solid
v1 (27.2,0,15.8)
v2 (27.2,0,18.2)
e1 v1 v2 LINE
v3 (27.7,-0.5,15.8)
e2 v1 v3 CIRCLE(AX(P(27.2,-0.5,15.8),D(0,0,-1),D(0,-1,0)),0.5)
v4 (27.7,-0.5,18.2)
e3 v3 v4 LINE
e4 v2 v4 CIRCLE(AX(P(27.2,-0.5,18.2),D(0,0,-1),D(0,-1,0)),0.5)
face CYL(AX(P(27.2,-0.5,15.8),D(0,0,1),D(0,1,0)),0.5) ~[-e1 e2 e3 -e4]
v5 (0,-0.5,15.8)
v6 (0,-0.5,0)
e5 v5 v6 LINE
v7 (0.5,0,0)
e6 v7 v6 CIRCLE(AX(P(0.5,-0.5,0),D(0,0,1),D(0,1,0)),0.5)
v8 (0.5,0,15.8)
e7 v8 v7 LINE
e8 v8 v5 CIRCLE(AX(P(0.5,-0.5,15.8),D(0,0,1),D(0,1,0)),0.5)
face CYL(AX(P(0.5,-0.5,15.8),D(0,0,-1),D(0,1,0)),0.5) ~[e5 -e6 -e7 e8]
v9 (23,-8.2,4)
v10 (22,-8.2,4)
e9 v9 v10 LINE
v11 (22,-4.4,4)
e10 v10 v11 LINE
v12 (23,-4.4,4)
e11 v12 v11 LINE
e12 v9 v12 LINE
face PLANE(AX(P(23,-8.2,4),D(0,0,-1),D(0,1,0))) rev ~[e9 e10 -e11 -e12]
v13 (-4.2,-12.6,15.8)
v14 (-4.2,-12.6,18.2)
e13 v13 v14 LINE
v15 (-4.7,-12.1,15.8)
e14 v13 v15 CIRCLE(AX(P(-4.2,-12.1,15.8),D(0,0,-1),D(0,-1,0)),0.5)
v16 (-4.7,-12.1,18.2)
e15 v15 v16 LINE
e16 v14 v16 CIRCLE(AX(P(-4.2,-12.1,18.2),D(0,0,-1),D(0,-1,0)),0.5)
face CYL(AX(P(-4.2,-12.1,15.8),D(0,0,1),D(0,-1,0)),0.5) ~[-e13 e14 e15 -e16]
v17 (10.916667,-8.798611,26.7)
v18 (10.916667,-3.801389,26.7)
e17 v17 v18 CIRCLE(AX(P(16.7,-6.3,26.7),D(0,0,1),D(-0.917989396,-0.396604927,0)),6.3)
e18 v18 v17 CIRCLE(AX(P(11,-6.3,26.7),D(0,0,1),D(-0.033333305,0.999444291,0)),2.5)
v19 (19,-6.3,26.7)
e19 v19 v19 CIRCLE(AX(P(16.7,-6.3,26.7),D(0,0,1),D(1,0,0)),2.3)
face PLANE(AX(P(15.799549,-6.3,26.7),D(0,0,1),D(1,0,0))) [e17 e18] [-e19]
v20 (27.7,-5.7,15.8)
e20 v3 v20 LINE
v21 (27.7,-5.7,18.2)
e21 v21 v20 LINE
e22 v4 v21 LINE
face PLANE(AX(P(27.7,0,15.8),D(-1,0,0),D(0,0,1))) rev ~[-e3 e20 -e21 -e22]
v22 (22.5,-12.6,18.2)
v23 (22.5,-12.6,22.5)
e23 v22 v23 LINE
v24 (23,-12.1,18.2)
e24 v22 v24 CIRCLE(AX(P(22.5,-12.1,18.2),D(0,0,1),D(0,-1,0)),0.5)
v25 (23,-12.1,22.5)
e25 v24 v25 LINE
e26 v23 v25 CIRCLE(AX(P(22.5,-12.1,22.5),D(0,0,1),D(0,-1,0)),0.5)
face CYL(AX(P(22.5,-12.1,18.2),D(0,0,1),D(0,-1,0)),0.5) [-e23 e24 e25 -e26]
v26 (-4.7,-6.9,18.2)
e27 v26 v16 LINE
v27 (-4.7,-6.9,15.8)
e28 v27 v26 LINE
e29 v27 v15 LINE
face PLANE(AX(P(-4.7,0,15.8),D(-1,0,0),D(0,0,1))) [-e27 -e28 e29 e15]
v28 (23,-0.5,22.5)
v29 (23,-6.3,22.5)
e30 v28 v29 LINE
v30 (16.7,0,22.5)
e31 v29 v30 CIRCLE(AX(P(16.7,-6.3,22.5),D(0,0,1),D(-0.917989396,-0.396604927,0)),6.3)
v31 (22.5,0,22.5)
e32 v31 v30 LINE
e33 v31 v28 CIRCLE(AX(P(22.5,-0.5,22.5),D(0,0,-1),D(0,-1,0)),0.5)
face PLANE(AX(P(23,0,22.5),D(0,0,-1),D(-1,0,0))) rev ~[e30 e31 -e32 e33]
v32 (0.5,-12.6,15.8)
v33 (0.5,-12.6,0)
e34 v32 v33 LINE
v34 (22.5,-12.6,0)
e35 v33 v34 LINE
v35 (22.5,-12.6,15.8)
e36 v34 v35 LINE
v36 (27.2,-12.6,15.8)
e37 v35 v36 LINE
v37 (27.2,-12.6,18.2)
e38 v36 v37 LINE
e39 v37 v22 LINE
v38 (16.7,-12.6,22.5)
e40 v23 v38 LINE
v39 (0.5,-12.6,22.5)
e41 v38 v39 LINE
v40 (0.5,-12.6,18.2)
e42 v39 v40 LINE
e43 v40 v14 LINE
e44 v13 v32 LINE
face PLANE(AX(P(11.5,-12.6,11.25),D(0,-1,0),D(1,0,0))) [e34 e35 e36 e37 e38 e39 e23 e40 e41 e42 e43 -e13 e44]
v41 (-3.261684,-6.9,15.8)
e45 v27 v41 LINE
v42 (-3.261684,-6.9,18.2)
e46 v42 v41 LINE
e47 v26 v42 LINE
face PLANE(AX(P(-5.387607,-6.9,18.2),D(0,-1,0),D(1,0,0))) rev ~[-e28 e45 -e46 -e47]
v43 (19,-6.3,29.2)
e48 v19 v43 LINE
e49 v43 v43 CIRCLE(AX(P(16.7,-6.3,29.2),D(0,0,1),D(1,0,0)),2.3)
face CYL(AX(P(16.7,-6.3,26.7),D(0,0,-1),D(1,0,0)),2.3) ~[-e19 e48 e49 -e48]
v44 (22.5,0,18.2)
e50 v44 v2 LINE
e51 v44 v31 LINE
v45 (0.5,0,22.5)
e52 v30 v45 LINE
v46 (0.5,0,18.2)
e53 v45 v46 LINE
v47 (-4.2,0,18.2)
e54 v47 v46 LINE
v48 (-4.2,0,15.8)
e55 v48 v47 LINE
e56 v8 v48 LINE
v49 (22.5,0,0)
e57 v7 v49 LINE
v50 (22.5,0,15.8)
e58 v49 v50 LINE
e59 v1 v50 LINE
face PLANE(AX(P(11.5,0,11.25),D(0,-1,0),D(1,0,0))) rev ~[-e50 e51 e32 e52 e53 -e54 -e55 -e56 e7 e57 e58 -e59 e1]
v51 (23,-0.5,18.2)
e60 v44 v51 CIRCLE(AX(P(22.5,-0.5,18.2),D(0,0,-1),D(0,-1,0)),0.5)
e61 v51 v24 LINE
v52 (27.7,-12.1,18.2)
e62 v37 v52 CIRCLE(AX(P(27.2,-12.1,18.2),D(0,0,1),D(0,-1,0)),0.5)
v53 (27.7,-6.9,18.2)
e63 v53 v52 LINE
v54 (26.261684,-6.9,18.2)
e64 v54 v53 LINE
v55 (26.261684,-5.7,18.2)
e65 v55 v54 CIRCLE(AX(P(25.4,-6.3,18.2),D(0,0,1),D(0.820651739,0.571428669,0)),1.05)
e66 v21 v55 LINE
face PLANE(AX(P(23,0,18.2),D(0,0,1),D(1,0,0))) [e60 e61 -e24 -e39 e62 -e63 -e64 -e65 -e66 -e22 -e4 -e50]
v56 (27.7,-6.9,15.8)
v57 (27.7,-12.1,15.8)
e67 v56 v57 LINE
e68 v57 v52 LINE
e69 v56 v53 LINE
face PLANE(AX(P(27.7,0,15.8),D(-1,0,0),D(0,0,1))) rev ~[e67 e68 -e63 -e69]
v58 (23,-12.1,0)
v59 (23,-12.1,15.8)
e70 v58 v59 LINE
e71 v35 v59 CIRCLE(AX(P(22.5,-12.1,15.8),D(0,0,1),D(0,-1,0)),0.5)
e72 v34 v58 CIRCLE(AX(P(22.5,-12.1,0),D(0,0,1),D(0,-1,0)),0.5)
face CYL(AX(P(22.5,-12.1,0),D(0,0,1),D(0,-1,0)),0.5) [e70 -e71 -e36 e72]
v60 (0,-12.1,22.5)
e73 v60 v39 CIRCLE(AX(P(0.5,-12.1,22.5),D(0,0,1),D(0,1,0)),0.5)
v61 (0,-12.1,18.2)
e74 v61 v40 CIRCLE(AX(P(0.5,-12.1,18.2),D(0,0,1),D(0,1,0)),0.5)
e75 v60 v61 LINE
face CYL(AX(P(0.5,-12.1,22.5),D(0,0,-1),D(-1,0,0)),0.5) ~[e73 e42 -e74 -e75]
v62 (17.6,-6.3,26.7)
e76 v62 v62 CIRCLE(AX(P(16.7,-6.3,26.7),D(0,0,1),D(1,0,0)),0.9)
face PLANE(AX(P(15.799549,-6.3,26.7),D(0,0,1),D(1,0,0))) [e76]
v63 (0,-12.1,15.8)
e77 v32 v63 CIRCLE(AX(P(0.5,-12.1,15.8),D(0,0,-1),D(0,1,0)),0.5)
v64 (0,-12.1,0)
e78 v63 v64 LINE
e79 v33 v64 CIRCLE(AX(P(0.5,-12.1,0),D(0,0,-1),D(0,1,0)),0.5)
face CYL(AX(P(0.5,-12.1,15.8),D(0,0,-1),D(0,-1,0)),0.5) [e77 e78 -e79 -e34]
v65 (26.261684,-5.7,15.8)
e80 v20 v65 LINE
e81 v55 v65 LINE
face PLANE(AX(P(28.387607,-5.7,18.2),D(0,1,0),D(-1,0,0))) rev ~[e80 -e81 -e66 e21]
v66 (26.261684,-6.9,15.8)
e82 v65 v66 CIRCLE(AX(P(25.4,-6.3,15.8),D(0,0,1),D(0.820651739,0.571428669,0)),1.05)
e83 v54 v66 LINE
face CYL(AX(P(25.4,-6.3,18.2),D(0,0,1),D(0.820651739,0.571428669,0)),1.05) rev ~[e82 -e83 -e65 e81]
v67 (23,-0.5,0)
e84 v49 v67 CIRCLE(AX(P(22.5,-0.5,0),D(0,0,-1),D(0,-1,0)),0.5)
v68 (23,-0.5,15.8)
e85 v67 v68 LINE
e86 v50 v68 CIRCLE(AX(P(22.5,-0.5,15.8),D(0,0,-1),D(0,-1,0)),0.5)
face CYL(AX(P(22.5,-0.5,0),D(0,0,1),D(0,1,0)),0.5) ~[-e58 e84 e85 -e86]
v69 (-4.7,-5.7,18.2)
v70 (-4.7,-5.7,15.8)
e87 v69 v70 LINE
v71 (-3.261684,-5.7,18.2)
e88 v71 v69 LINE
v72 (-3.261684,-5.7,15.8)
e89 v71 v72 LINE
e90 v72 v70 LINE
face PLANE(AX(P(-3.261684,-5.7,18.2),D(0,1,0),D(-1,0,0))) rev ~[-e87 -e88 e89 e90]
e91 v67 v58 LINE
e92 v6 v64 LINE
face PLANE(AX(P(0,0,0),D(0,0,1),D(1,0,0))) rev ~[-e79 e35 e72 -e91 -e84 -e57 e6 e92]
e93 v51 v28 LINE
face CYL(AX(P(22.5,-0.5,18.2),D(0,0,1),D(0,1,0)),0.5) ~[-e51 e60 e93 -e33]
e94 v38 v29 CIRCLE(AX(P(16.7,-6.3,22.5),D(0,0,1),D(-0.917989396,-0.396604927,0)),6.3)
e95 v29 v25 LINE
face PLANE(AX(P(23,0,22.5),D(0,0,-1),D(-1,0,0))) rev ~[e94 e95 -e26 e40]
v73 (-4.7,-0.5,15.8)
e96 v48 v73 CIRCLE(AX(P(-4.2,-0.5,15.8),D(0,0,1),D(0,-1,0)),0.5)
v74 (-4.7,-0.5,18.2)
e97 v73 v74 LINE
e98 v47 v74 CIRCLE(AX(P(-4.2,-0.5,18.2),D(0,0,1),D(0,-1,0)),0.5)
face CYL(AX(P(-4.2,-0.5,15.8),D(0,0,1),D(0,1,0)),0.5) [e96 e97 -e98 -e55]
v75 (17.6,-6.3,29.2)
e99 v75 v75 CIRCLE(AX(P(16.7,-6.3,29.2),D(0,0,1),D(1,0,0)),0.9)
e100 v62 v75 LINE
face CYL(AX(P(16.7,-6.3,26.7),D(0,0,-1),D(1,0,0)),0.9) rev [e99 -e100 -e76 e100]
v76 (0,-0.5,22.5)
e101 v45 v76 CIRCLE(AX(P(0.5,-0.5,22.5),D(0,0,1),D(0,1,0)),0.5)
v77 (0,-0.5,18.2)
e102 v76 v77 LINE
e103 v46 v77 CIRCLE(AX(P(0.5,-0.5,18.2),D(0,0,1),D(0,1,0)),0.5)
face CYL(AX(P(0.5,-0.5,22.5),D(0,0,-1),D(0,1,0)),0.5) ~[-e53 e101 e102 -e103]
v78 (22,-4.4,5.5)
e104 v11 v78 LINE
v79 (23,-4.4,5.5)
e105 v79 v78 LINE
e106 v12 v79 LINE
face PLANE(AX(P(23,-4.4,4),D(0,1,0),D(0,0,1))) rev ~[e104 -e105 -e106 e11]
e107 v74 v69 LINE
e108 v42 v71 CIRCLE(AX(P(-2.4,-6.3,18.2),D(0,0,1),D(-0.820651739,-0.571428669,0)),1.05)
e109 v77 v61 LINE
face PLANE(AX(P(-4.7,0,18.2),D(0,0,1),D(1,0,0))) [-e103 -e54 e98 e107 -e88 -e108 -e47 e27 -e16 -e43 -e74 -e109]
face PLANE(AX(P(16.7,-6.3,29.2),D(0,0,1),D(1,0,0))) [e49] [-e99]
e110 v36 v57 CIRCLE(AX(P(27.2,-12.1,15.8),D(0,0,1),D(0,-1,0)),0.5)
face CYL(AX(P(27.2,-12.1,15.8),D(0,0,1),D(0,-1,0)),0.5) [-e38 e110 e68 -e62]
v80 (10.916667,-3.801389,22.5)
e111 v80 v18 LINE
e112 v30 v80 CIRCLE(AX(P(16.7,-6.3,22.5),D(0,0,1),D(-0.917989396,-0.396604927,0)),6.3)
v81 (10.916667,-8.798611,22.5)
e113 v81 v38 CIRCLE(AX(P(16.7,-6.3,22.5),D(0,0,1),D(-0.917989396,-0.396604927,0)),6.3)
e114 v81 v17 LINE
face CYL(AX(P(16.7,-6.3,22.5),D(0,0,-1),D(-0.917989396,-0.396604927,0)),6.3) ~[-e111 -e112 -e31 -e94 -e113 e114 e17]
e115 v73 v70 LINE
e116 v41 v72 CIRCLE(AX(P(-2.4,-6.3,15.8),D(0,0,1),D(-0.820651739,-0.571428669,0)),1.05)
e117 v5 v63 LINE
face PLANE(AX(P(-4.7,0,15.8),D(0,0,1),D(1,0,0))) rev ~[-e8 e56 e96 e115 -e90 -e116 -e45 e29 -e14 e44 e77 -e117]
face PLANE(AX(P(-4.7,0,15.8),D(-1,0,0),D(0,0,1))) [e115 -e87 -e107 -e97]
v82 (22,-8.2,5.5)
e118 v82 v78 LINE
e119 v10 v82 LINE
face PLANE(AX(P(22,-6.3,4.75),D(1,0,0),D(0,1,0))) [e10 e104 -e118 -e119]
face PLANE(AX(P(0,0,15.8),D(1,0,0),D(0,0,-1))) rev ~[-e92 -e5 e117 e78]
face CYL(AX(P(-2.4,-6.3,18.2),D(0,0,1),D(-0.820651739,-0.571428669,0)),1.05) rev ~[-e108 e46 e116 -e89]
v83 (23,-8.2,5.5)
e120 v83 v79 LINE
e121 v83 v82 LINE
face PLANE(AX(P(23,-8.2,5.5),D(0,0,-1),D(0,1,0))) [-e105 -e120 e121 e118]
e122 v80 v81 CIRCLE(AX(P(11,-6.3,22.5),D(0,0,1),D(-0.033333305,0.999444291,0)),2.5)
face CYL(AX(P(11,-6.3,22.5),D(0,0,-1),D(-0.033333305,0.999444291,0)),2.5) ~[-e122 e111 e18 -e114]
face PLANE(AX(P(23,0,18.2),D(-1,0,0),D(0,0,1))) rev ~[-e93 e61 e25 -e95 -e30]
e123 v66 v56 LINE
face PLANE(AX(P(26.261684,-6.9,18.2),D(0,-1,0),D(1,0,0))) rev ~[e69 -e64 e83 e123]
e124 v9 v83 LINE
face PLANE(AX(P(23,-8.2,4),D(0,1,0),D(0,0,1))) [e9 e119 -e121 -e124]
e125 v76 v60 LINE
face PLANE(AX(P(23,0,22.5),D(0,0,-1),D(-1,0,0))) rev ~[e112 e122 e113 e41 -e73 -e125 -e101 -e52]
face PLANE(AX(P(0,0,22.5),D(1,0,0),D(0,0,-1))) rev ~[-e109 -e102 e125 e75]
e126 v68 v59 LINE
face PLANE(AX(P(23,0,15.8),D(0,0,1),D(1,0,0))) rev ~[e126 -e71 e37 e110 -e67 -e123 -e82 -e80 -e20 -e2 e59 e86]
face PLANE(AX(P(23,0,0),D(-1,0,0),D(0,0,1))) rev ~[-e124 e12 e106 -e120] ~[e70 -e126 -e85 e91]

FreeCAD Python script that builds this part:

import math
import FreeCAD as App
import Part
import Sketcher
Q = App.Units.Quantity


def edges_at(feature, points):
    """Names of the edges that pass closest to the given points."""
    edges = feature.Shape.Edges
    near = lambda p: min(range(len(edges)), key=lambda i: edges[i].distToShape(Part.Vertex(*p))[0])
    return sorted({f"Edge{near(p) + 1}" for p in points})


def add_polygon(sketch, points):
    """Adds a closed chain of lines whose ends are joined by coincident constraints."""
    first, n = sketch.GeometryCount, len(points)
    for a, b in zip(points, points[1:] + points[:1]):
        sketch.addGeometry(Part.LineSegment(App.Vector(*a, 0), App.Vector(*b, 0)), False)
    for i in range(n):
        sketch.addConstraint(Sketcher.Constraint("Coincident", first + i, 2, first + (i + 1) % n, 1))

doc = App.newDocument("Part")
body = doc.addObject("PartDesign::Body", "Body")

# Sketch on XZ plane
sketch1 = body.newObject("Sketcher::SketchObject", "Sketch")
sketch1.AttachmentSupport = (doc.getObject("XZ_Plane"), [""])
sketch1.MapMode = "FlatFace"
add_polygon(sketch1, [(0, 0), (23, 0), (23, 15.8), (27.7, 15.8), (27.7, 18.2), (23, 18.2), (23, 22.5), (0, 22.5), (0, 18.2), (-4.7, 18.2), (-4.7, 15.8), (0, 15.8)])  # lines 0-11
sketch1.addConstraint(Sketcher.Constraint("Horizontal", 0))
sketch1.addConstraint(Sketcher.Constraint("Vertical", 1))
sketch1.addConstraint(Sketcher.Constraint("Horizontal", 2))
sketch1.addConstraint(Sketcher.Constraint("Vertical", 3))
sketch1.addConstraint(Sketcher.Constraint("Horizontal", 4))
sketch1.addConstraint(Sketcher.Constraint("Vertical", 5))
sketch1.addConstraint(Sketcher.Constraint("Horizontal", 6))
sketch1.addConstraint(Sketcher.Constraint("Vertical", 7))
sketch1.addConstraint(Sketcher.Constraint("Horizontal", 8))
sketch1.addConstraint(Sketcher.Constraint("Vertical", 9))
sketch1.addConstraint(Sketcher.Constraint("Horizontal", 10))
sketch1.addConstraint(Sketcher.Constraint("Vertical", 11))
sketch1.addConstraint(Sketcher.Constraint("Coincident", 11, 2, -1, 1))
sketch1.addConstraint(Sketcher.Constraint("PointOnObject", 6, 2, -2))
sketch1.addConstraint(Sketcher.Constraint("Horizontal", 4, 2, 7, 2))
sketch1.addConstraint(Sketcher.Constraint("Horizontal", 2, 2, 9, 2))
sketch1.addConstraint(Sketcher.Constraint("Vertical", 1, 2, 4, 2))
sketch1.addConstraint(Sketcher.Constraint("Equal", 4, 8))
sketch1.addConstraint(Sketcher.Constraint("DistanceX", 0, 1, 0, 2, Q("23 mm")))
sketch1.addConstraint(Sketcher.Constraint("DistanceX", 2, 1, 2, 2, Q("4.7 mm")))
sketch1.addConstraint(Sketcher.Constraint("DistanceY", 1, 1, 1, 2, Q("15.8 mm")))
sketch1.addConstraint(Sketcher.Constraint("DistanceY", 3, 1, 3, 2, Q("2.4 mm")))
sketch1.addConstraint(Sketcher.Constraint("DistanceY", 5, 1, 5, 2, Q("4.3 mm")))
pad1 = body.newObject("PartDesign::Pad", "Pad")
pad1.Profile = sketch1
pad1.Length = 12.6

# Sketch on XY plane
sketch2 = body.newObject("Sketcher::SketchObject", "Sketch001")
sketch2.AttachmentSupport = (doc.getObject("XY_Plane"), [""])
sketch2.MapMode = "FlatFace"
sketch2.AttachmentOffset = App.Placement(App.Vector(0, 0, 22.5), App.Rotation())
sketch2.addGeometry(Part.ArcOfCircle(Part.Circle(App.Vector(11, -6.3, 0), App.Vector(0, 0, 1), 2.5), math.radians(92), math.radians(268)), False)
sketch2.addGeometry(Part.ArcOfCircle(Part.Circle(App.Vector(16.7, -6.3, 0), App.Vector(0, 0, 1), 6.3), math.radians(-157), math.radians(157)), False)
sketch2.addConstraint(Sketcher.Constraint("Coincident", 0, 1, 1, 2))
sketch2.addConstraint(Sketcher.Constraint("Coincident", 1, 1, 0, 2))
sketch2.addConstraint(Sketcher.Constraint("Horizontal", 0, 3, 1, 3))
sketch2.addConstraint(Sketcher.Constraint("Radius", 0, Q("2.5 mm")))
sketch2.addConstraint(Sketcher.Constraint("Radius", 1, Q("6.3 mm")))
sketch2.addConstraint(Sketcher.Constraint("DistanceX", -1, 1, 0, 3, Q("11 mm")))
sketch2.addConstraint(Sketcher.Constraint("DistanceY", 0, 3, -1, 1, Q("6.3 mm")))
sketch2.addConstraint(Sketcher.Constraint("DistanceX", -1, 1, 1, 3, Q("16.7 mm")))
pad2 = body.newObject("PartDesign::Pad", "Pad001")
pad2.Profile = sketch2
pad2.Length = 4.2

# Sketch on XY plane
sketch3 = body.newObject("Sketcher::SketchObject", "Sketch002")
sketch3.AttachmentSupport = (doc.getObject("XY_Plane"), [""])
sketch3.MapMode = "FlatFace"
sketch3.AttachmentOffset = App.Placement(App.Vector(0, 0, 26.7), App.Rotation())
sketch3.addGeometry(Part.Circle(App.Vector(16.7, -6.3, 0), App.Vector(0, 0, 1), 2.3), False)
sketch3.addGeometry(Part.Circle(App.Vector(16.7, -6.3, 0), App.Vector(0, 0, 1), 0.9), False)
sketch3.addConstraint(Sketcher.Constraint("Coincident", 1, 3, 0, 3))
sketch3.addConstraint(Sketcher.Constraint("Diameter", 0, Q("4.6 mm")))
sketch3.addConstraint(Sketcher.Constraint("Diameter", 1, Q("1.8 mm")))
sketch3.addConstraint(Sketcher.Constraint("DistanceX", -1, 1, 0, 3, Q("16.7 mm")))
sketch3.addConstraint(Sketcher.Constraint("DistanceY", 0, 3, -1, 1, Q("6.3 mm")))
pad3 = body.newObject("PartDesign::Pad", "Pad002")
pad3.Profile = sketch3
pad3.Length = 2.5

# Sketch on XY plane
sketch4 = body.newObject("Sketcher::SketchObject", "Sketch003")
sketch4.AttachmentSupport = (doc.getObject("XY_Plane"), [""])
sketch4.MapMode = "FlatFace"
sketch4.AttachmentOffset = App.Placement(App.Vector(0, 0, 18.2), App.Rotation())
sketch4.addGeometry(Part.LineSegment(App.Vector(-5.4, -6.9, 0), App.Vector(-3.3, -6.9, 0)), False)
sketch4.addGeometry(Part.ArcOfCircle(Part.Circle(App.Vector(-2.4, -6.3, 0), App.Vector(0, 0, 1), 1), math.radians(-145), math.radians(145)), False)
sketch4.addGeometry(Part.LineSegment(App.Vector(-3.3, -5.7, 0), App.Vector(-5.4, -5.7, 0)), False)
sketch4.addGeometry(Part.LineSegment(App.Vector(-5.4, -5.7, 0), App.Vector(-5.4, -6.9, 0)), False)
sketch4.addGeometry(Part.ArcOfCircle(Part.Circle(App.Vector(25.4, -6.3, 0), App.Vector(0, 0, 1), 1), math.radians(35), math.radians(325)), False)
sketch4.addGeometry(Part.LineSegment(App.Vector(26.3, -6.9, 0), App.Vector(28.4, -6.9, 0)), False)
sketch4.addGeometry(Part.LineSegment(App.Vector(28.4, -6.9, 0), App.Vector(28.4, -5.7, 0)), False)
sketch4.addGeometry(Part.LineSegment(App.Vector(28.4, -5.7, 0), App.Vector(26.3, -5.7, 0)), False)
sketch4.addConstraint(Sketcher.Constraint("Coincident", 0, 2, 1, 1))
sketch4.addConstraint(Sketcher.Constraint("Coincident", 1, 2, 2, 1))
sketch4.addConstraint(Sketcher.Constraint("Coincident", 2, 2, 3, 1))
sketch4.addConstraint(Sketcher.Constraint("Coincident", 3, 2, 0, 1))
sketch4.addConstraint(Sketcher.Constraint("Coincident", 4, 2, 5, 1))
sketch4.addConstraint(Sketcher.Constraint("Coincident", 5, 2, 6, 1))
sketch4.addConstraint(Sketcher.Constraint("Coincident", 6, 2, 7, 1))
sketch4.addConstraint(Sketcher.Constraint("Coincident", 7, 2, 4, 1))
sketch4.addConstraint(Sketcher.Constraint("Horizontal", 0))
sketch4.addConstraint(Sketcher.Constraint("Horizontal", 2))
sketch4.addConstraint(Sketcher.Constraint("Vertical", 3))
sketch4.addConstraint(Sketcher.Constraint("Horizontal", 5))
sketch4.addConstraint(Sketcher.Constraint("Vertical", 6))
sketch4.addConstraint(Sketcher.Constraint("Horizontal", 7))
sketch4.addConstraint(Sketcher.Constraint("Equal", 1, 4))
sketch4.addConstraint(Sketcher.Constraint("Horizontal", 1, 3, 4, 3))
sketch4.addConstraint(Sketcher.Constraint("Horizontal", 3, 2, 4, 2))
sketch4.addConstraint(Sketcher.Constraint("Horizontal", 2, 2, 6, 2))
sketch4.addConstraint(Sketcher.Constraint("Vertical", 0, 2, 1, 2))
sketch4.addConstraint(Sketcher.Constraint("Equal", 2, 5))
sketch4.addConstraint(Sketcher.Constraint("Radius", 1, Q("1.05 mm")))
sketch4.addConstraint(Sketcher.Constraint("DistanceY", 3, 2, 3, 1, Q("1.2 mm")))
sketch4.addConstraint(Sketcher.Constraint("DistanceX", 1, 3, -1, 1, Q("2.4 mm")))
sketch4.addConstraint(Sketcher.Constraint("DistanceY", 1, 3, -1, 1, Q("6.3 mm")))
sketch4.addConstraint(Sketcher.Constraint("DistanceX", -1, 1, 4, 3, Q("25.4 mm")))
sketch4.addConstraint(Sketcher.Constraint("DistanceX", 0, 1, 0, 2, Q("2.125923 mm")))
pocket1 = body.newObject("PartDesign::Pocket", "Pocket")
pocket1.Profile = sketch4
pocket1.Length = 25
doc.recompute()

fillet = body.newObject("PartDesign::Fillet", "Fillet")
fillet.Base = (pocket1, edges_at(pocket1, [
    (0, -12.6, 20.35),
    (0, -12.6, 7.9),
    (0, 0, 20.35),
    (0, 0, 7.9),
    (-4.7, -12.6, 17),
    (-4.7, 0, 17),
    (27.7, -12.6, 17),
    (23, -12.6, 20.35),
    (23, -12.6, 7.9),
    (27.7, 0, 17),
    (23, 0, 20.35),
    (23, 0, 7.9),
]))
fillet.Radius = 0.5

# Sketch on YZ plane
sketch5 = body.newObject("Sketcher::SketchObject", "Sketch004")
sketch5.AttachmentSupport = (doc.getObject("YZ_Plane"), [""])
sketch5.MapMode = "FlatFace"
sketch5.AttachmentOffset = App.Placement(App.Vector(0, 0, 23), App.Rotation())
add_polygon(sketch5, [(-8.2, 5.5), (-8.2, 4), (-4.4, 4), (-4.4, 5.5)])  # lines 0-3
sketch5.addConstraint(Sketcher.Constraint("Vertical", 0))
sketch5.addConstraint(Sketcher.Constraint("Horizontal", 1))
sketch5.addConstraint(Sketcher.Constraint("Vertical", 2))
sketch5.addConstraint(Sketcher.Constraint("Horizontal", 3))
sketch5.addConstraint(Sketcher.Constraint("DistanceX", 1, 1, 1, 2, Q("3.8 mm")))
sketch5.addConstraint(Sketcher.Constraint("DistanceY", 0, 2, 0, 1, Q("1.5 mm")))
sketch5.addConstraint(Sketcher.Constraint("DistanceY", -1, 1, 0, 2, Q("4 mm")))
sketch5.addConstraint(Sketcher.Constraint("DistanceX", 0, 2, -1, 1, Q("8.2 mm")))
pocket2 = body.newObject("PartDesign::Pocket", "Pocket001")
pocket2.Profile = sketch5
pocket2.Length = 1

doc.recompute()
